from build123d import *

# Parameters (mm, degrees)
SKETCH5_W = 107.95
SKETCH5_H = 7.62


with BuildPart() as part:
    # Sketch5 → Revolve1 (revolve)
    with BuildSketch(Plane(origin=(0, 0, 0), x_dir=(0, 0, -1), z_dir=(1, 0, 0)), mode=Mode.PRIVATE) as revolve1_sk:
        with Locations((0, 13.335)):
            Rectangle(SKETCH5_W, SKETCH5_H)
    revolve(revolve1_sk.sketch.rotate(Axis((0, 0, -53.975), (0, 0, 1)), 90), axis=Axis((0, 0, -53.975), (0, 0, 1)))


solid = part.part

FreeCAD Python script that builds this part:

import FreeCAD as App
import Part
import Sketcher
Q = App.Units.Quantity


def add_polygon(sketch, points):
    """Adds a closed chain of lines whose ends are joined by coincident constraints."""
    first, n = sketch.GeometryCount, len(points)
    for a, b in zip(points, points[1:] + points[:1]):
        sketch.addGeometry(Part.LineSegment(App.Vector(*a, 0), App.Vector(*b, 0)), False)
    for i in range(n):
        sketch.addConstraint(Sketcher.Constraint("Coincident", first + i, 2, first + (i + 1) % n, 1))

doc = App.newDocument("Part")
body = doc.addObject("PartDesign::Body", "Body")

# Sketch on YZ plane
sketch1 = doc.addObject("Sketcher::SketchObject", "Sketch")
body.addObject(sketch1)
sketch1.AttachmentSupport = (doc.YZ_Plane, [""])
sketch1.MapMode = "FlatFace"
add_polygon(sketch1, [(17, 54), (10, 54), (10, -54), (17, -54)])  # lines 0-3
sketch1.addConstraint(Sketcher.Constraint("Horizontal", 0))
sketch1.addConstraint(Sketcher.Constraint("Vertical", 1))
sketch1.addConstraint(Sketcher.Constraint("Horizontal", 2))
sketch1.addConstraint(Sketcher.Constraint("Vertical", 3))
sketch1.addConstraint(Sketcher.Constraint("DistanceX", 0, 2, 0, 1, Q("0.3 in")))
sketch1.addConstraint(Sketcher.Constraint("DistanceY", 1, 2, 1, 1, Q("4.25 in")))
sketch1.addConstraint(Sketcher.Constraint("DistanceX", -1, 1, 0, 2, Q("0.375 in")))
sketch1.addConstraint(Sketcher.Constraint("DistanceY", -1, 1, 0, 2, Q("2.125 in")))
revolution = doc.addObject("PartDesign::Revolution", "Revolution")
body.addObject(revolution)
revolution.Profile = sketch1
revolution.ReferenceAxis = (sketch1, ["V_Axis"])
revolution.Angle = 360

doc.recompute()
